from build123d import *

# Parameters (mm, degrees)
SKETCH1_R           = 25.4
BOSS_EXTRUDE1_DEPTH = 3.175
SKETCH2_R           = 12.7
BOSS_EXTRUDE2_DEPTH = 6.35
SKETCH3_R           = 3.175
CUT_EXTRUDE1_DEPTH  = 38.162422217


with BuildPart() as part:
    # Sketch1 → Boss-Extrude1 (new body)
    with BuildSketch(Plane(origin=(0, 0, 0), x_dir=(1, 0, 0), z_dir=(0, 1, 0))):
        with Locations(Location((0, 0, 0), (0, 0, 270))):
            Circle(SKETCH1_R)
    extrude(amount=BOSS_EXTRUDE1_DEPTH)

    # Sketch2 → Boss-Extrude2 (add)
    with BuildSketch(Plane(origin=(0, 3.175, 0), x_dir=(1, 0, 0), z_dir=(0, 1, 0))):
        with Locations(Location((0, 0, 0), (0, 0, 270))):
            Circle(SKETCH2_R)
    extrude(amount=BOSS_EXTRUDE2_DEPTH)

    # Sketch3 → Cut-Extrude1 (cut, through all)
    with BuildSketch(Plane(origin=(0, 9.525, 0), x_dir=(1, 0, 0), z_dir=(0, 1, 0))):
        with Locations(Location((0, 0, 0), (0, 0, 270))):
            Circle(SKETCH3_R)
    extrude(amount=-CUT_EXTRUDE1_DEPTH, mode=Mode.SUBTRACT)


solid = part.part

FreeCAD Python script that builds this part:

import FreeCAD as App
import Part
import Sketcher
Q = App.Units.Quantity

doc = App.newDocument("Part")
body = doc.addObject("PartDesign::Body", "Body")

sketch1 = body.newObject("Sketcher::SketchObject", "Sketch")
sketch1.AttachmentSupport = (doc.getObject("XZ_Plane"), [""])
sketch1.MapMode = "FlatFace"
sketch1.addGeometry(Part.Circle(App.Vector(0, 0, 0), App.Vector(0, 0, 1), 25.4), False)
sketch1.addConstraint([
    Sketcher.Constraint("Coincident", 0, 3, -1, 1),
    Sketcher.Constraint("Diameter", 0, Q("2 in")),
])
pad1 = body.newObject("PartDesign::Pad", "Pad")
pad1.Profile = sketch1
pad1.Length = Q("0.125 in")
pad1.Reversed = True

sketch2 = body.newObject("Sketcher::SketchObject", "Sketch001")
sketch2.AttachmentSupport = (doc.getObject("XZ_Plane"), [""])
sketch2.MapMode = "FlatFace"
sketch2.AttachmentOffset = App.Placement(App.Vector(0, 0, -0.125 * 25.4), App.Rotation())
sketch2.addGeometry(Part.Circle(App.Vector(0, 0, 0), App.Vector(0, 0, 1), 12.7), False)
sketch2.addConstraint([
    Sketcher.Constraint("Coincident", 0, 3, -1, 1),
    Sketcher.Constraint("Diameter", 0, Q("1 in")),
])
pad2 = body.newObject("PartDesign::Pad", "Pad001")
pad2.Profile = sketch2
pad2.Length = Q("0.25 in")
pad2.Reversed = True

sketch3 = body.newObject("Sketcher::SketchObject", "Sketch002")
sketch3.AttachmentSupport = (doc.getObject("XZ_Plane"), [""])
sketch3.MapMode = "FlatFace"
sketch3.AttachmentOffset = App.Placement(App.Vector(0, 0, -0.375 * 25.4), App.Rotation())
sketch3.addGeometry(Part.Circle(App.Vector(0, 0, 0), App.Vector(0, 0, 1), 3.175), False)
sketch3.addConstraint([
    Sketcher.Constraint("Coincident", 0, 3, -1, 1),
    Sketcher.Constraint("Diameter", 0, Q("0.25 in")),
])
pocket1 = body.newObject("PartDesign::Pocket", "Pocket")
pocket1.Profile = sketch3
pocket1.Type = "ThroughAll"
pocket1.Reversed = True

doc.recompute()
